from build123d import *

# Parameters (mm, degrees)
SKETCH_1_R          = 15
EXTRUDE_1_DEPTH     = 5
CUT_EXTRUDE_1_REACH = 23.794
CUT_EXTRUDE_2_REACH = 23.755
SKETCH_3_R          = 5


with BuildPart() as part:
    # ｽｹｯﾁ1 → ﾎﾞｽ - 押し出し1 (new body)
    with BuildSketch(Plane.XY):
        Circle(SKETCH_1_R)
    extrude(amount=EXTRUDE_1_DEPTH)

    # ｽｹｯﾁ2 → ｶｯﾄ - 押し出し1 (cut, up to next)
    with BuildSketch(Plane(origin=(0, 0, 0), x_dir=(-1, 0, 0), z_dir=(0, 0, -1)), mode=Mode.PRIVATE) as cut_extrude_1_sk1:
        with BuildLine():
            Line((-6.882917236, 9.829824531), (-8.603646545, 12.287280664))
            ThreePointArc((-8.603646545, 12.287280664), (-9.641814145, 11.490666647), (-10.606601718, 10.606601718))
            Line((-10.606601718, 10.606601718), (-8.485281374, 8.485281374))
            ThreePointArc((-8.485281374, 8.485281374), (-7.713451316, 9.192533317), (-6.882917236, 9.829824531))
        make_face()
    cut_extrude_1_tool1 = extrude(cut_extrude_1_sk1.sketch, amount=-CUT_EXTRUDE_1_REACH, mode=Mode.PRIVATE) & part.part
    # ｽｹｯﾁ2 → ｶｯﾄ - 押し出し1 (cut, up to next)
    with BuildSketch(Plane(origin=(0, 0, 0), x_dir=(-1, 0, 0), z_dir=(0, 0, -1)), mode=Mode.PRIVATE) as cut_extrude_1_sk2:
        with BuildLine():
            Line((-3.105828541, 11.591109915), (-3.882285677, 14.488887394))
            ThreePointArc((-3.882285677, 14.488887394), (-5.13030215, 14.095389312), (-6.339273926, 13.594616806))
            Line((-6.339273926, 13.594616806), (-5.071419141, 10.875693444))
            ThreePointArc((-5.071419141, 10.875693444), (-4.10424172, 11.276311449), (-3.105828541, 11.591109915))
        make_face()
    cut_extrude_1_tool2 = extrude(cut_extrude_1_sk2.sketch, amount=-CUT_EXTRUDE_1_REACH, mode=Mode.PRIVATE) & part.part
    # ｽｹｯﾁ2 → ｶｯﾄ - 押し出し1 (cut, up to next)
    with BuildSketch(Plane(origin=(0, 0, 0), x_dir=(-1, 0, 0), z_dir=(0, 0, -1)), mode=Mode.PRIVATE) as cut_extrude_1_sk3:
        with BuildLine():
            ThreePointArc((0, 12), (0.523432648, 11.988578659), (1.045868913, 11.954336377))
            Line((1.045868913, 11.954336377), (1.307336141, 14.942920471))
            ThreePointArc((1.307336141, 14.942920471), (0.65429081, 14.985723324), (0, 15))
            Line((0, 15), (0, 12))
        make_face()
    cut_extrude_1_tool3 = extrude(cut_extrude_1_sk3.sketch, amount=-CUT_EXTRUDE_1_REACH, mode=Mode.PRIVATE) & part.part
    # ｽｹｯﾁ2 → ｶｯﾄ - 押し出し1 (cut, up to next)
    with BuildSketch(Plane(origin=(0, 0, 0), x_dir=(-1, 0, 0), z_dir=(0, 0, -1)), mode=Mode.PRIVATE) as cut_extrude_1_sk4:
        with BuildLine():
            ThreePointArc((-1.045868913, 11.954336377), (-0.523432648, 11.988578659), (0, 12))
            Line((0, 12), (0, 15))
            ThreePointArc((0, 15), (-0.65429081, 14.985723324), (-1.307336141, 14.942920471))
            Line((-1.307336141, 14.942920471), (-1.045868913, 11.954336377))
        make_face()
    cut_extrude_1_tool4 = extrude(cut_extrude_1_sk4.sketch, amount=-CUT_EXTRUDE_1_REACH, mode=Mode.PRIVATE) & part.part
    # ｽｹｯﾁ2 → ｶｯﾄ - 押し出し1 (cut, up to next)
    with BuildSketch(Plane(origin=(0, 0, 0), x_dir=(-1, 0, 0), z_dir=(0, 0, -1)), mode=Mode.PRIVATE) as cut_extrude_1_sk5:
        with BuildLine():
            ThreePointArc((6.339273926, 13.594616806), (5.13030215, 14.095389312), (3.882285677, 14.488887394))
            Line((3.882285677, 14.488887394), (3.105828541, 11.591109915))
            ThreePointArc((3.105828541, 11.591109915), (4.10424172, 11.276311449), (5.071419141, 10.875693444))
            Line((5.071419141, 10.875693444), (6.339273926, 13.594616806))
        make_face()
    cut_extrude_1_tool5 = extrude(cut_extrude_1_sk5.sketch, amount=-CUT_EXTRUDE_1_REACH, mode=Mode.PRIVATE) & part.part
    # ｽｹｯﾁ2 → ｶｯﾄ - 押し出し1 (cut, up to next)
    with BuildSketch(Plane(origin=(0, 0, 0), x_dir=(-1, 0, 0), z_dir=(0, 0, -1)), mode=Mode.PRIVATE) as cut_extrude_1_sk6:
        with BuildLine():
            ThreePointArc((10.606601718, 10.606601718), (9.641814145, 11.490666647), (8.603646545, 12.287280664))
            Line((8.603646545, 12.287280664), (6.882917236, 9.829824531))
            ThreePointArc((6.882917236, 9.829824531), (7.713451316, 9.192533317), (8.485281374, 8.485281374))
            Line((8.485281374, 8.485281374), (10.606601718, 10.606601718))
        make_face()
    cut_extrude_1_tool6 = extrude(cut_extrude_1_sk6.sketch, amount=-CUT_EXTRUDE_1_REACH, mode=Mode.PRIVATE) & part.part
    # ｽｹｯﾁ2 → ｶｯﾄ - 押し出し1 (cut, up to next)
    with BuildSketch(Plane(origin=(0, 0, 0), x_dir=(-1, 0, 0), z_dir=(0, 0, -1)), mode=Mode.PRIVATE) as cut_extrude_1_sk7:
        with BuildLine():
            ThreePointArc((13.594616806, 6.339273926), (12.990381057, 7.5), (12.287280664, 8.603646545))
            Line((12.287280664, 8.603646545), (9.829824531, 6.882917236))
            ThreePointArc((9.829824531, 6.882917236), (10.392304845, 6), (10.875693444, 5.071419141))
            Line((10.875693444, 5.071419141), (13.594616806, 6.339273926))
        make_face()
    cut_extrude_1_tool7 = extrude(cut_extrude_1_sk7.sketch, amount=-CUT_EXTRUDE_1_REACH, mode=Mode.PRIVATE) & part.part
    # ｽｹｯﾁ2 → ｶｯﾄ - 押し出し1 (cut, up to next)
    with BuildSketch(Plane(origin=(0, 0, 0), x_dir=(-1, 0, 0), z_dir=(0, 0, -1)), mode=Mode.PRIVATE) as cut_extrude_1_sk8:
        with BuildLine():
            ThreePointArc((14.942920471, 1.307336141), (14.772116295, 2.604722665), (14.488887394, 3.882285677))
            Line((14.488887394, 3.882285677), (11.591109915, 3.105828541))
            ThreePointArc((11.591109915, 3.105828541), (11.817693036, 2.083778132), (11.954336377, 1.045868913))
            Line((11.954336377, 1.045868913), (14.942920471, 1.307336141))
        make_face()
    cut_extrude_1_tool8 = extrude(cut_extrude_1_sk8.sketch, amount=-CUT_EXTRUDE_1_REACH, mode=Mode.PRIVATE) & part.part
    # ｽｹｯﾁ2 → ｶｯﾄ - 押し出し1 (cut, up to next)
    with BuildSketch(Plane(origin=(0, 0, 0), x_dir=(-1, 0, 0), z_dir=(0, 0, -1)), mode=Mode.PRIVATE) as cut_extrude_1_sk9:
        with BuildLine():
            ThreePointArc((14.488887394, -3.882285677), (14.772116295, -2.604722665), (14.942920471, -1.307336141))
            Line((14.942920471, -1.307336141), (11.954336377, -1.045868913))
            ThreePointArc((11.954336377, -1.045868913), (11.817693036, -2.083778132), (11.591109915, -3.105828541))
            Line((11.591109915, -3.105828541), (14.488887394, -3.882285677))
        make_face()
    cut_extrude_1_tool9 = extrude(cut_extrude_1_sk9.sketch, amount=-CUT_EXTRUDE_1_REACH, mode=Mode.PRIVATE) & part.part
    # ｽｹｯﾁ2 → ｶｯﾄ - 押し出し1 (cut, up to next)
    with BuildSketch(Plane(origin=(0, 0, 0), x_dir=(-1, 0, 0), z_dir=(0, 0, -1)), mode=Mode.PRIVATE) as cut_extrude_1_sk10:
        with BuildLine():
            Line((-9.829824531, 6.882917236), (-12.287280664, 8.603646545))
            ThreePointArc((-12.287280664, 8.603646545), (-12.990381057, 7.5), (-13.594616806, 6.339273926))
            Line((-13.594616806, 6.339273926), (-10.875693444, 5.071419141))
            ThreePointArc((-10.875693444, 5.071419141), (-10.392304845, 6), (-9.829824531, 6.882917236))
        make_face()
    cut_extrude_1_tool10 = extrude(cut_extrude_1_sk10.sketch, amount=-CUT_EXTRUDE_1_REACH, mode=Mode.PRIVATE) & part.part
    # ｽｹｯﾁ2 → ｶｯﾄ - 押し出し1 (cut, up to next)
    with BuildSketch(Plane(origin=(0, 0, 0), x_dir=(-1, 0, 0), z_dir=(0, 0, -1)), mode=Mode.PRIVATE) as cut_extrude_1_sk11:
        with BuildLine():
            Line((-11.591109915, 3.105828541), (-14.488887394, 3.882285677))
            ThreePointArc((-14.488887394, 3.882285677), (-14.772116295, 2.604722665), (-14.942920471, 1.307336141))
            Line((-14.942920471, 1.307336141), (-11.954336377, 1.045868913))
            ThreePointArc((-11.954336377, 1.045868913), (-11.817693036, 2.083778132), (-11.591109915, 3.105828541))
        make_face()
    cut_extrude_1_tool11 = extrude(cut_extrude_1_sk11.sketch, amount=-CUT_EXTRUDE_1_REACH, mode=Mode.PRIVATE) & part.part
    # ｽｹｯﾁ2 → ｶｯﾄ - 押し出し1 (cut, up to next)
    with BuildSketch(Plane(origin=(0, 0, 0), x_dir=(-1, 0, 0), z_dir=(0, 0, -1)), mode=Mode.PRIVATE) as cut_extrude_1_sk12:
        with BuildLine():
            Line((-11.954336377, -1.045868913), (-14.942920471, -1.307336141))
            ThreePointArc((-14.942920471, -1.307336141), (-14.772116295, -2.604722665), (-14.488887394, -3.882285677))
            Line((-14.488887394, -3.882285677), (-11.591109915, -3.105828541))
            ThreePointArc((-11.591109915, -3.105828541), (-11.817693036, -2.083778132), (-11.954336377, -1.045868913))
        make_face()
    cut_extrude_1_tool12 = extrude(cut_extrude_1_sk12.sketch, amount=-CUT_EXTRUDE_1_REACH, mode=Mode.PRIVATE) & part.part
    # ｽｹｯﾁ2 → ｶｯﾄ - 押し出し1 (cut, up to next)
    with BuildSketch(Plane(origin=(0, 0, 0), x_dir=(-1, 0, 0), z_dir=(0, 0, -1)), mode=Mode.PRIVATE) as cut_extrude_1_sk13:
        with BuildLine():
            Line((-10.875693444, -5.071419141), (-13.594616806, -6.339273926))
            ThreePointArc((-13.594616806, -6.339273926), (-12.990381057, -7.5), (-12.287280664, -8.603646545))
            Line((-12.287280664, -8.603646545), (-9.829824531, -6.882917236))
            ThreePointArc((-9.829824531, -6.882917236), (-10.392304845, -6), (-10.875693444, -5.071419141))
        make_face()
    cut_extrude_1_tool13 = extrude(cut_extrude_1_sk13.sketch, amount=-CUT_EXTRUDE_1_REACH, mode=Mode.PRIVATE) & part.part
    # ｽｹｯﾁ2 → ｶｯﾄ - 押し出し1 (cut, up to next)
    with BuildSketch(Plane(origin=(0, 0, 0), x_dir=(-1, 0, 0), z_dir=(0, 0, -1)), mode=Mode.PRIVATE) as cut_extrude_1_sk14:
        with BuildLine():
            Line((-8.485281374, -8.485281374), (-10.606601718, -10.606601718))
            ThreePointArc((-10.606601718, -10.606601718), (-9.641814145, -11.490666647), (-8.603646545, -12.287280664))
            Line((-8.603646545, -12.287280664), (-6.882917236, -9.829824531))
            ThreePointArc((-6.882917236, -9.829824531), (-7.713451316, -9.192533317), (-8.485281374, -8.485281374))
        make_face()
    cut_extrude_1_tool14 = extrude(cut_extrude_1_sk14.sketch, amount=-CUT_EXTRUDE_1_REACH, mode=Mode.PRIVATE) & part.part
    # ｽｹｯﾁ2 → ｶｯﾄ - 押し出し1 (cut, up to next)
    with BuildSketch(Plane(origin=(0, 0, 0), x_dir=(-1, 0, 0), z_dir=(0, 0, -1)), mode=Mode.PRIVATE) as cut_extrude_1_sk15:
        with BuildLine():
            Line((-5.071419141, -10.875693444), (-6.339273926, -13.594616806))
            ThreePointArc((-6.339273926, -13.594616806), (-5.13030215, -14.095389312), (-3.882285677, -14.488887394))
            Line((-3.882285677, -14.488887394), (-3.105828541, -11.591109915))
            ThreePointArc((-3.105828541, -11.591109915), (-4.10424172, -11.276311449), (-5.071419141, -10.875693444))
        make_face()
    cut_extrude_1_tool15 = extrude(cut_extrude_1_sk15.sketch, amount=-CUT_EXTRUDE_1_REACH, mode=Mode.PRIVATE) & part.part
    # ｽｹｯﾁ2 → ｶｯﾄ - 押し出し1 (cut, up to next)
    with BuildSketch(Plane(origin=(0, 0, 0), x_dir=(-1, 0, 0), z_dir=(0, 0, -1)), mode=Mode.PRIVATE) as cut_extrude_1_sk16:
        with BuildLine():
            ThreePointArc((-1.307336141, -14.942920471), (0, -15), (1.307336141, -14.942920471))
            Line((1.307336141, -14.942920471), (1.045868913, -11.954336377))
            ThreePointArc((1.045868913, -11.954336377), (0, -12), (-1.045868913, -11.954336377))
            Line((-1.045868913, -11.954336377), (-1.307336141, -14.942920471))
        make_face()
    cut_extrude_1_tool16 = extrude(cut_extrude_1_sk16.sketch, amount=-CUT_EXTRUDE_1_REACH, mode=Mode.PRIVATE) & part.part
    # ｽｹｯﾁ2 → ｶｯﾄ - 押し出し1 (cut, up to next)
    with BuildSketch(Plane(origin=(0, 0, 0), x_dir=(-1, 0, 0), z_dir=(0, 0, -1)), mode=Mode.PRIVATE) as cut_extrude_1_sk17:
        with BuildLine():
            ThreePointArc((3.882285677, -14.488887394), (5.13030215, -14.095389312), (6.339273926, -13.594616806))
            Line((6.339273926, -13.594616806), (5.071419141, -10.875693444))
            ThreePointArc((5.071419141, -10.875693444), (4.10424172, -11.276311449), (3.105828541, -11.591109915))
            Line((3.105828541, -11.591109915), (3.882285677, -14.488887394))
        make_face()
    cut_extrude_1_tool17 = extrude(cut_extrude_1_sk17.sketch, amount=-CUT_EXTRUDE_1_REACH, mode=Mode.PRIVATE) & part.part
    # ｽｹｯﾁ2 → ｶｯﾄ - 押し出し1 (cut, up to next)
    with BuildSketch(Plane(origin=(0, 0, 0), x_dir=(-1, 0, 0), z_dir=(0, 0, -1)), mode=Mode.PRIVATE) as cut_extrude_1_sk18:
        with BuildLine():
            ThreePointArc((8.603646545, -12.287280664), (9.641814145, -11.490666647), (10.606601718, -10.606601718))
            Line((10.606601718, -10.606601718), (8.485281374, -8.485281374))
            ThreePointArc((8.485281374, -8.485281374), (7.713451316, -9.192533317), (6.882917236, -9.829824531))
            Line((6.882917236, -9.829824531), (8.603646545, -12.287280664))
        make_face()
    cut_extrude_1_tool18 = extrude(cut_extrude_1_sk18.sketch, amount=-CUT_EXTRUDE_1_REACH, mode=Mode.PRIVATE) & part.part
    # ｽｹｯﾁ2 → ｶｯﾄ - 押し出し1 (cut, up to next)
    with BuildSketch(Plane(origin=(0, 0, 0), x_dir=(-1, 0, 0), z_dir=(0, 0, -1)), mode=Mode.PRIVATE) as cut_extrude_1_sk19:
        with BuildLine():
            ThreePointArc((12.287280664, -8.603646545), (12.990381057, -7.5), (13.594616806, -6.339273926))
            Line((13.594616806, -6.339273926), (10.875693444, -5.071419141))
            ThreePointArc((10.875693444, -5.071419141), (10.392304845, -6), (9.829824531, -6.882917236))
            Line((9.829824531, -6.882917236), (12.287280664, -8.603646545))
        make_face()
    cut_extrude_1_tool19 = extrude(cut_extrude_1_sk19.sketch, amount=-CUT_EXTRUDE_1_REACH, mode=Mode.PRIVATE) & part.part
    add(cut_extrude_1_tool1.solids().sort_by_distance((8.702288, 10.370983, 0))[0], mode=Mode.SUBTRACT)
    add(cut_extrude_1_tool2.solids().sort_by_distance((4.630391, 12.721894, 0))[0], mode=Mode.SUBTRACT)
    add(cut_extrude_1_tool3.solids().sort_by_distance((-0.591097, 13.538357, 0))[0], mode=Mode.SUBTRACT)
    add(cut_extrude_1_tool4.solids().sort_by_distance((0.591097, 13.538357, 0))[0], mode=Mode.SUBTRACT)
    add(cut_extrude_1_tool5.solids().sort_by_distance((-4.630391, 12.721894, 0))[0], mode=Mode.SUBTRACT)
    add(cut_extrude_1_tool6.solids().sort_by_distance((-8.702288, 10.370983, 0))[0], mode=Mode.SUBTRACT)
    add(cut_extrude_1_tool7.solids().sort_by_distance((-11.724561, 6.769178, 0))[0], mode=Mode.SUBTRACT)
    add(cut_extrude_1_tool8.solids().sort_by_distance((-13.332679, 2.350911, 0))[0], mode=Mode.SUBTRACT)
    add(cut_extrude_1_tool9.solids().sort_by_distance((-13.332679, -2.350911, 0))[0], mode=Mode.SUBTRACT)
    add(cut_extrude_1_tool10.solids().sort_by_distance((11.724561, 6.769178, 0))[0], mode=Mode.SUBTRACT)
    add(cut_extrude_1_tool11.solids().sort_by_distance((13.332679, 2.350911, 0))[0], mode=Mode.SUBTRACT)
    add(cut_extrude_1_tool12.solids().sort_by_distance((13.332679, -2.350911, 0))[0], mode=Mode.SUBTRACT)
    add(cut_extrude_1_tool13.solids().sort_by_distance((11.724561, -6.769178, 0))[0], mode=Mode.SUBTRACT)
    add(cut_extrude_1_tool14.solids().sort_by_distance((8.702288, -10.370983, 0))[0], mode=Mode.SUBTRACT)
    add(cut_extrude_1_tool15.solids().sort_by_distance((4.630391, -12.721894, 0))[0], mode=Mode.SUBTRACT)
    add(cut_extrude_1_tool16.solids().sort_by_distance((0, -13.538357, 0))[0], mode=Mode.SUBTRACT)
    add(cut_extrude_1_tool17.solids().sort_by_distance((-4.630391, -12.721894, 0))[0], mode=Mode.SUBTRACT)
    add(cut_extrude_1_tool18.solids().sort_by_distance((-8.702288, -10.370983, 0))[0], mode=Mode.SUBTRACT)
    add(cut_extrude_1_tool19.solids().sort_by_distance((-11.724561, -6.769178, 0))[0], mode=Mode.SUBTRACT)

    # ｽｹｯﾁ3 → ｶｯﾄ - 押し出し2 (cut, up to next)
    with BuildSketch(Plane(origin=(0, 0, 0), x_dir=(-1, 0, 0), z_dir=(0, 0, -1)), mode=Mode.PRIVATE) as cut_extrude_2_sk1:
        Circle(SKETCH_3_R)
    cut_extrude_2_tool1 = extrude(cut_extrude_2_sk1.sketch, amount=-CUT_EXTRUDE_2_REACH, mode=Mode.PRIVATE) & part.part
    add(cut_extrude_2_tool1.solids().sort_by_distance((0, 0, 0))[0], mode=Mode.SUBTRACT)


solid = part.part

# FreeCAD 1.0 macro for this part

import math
import FreeCAD as App
import Part
import Sketcher
Q = App.Units.Quantity

doc = App.newDocument("Part")
body = doc.addObject("PartDesign::Body", "Body")

# Sketch on XY plane
sketch1 = doc.addObject("Sketcher::SketchObject", "Sketch")
body.addObject(sketch1)
sketch1.AttachmentSupport = (doc.XY_Plane, [""])
sketch1.MapMode = "FlatFace"
sketch1.addGeometry(Part.Circle(App.Vector(0, 0, 0), App.Vector(0, 0, 1), 15), False)
sketch1.addConstraint(Sketcher.Constraint("Coincident", 0, 3, -1, 1))
sketch1.addConstraint(Sketcher.Constraint("Diameter", 0, Q("30 mm")))
pad1 = doc.addObject("PartDesign::Pad", "Pad")
body.addObject(pad1)
pad1.Profile = sketch1
pad1.Length = 5

# Sketch on XY plane
sketch2 = doc.addObject("Sketcher::SketchObject", "Sketch001")
body.addObject(sketch2)
sketch2.AttachmentSupport = (doc.XY_Plane, [""])
sketch2.MapMode = "FlatFace"
sketch2.addGeometry(Part.LineSegment(App.Vector(6.882917, 9.829825, 0), App.Vector(8.603647, 12.287281, 0)), False)
sketch2.addGeometry(Part.ArcOfCircle(Part.Circle(App.Vector(0, 0, 0), App.Vector(0, 0, 1), 15), math.radians(45), math.radians(55)), False)
sketch2.addGeometry(Part.LineSegment(App.Vector(10.606602, 10.606602, 0), App.Vector(8.485281, 8.485281, 0)), False)
sketch2.addGeometry(Part.ArcOfCircle(Part.Circle(App.Vector(0, 0, 0), App.Vector(0, 0, 1), 12), math.radians(45), math.radians(55)), False)
sketch2.addConstraint(Sketcher.Constraint("Coincident", 0, 2, 1, 2))
sketch2.addConstraint(Sketcher.Constraint("Coincident", 1, 1, 2, 1))
sketch2.addConstraint(Sketcher.Constraint("Coincident", 2, 2, 3, 1))
sketch2.addConstraint(Sketcher.Constraint("Coincident", 3, 2, 0, 1))
sketch2.addConstraint(Sketcher.Constraint("Coincident", 1, 3, -1, 1))
sketch2.addConstraint(Sketcher.Constraint("Coincident", 3, 3, -1, 1))
sketch2.addConstraint(Sketcher.Constraint("Radius", 1, Q("15 mm")))
sketch2.addConstraint(Sketcher.Constraint("Radius", 3, Q("12 mm")))
sketch2.addConstraint(Sketcher.Constraint("Angle", 0, Q("55 deg")))
sketch2.addConstraint(Sketcher.Constraint("Angle", 2, Q("-135 deg")))
sketch2.addConstraint(Sketcher.Constraint("DistanceY", 2, 2, 0, 2, Q("3.801999 mm")))
sketch2.addConstraint(Sketcher.Constraint("DistanceX", -1, 1, 1, 1, Q("10.606602 mm")))
pocket1 = doc.addObject("PartDesign::Pocket", "Pocket")
body.addObject(pocket1)
pocket1.Profile = sketch2
pocket1.Type = "UpToFirst"
pocket1.Reversed = True

# Sketch on XY plane
sketch3 = doc.addObject("Sketcher::SketchObject", "Sketch002")
body.addObject(sketch3)
sketch3.AttachmentSupport = (doc.XY_Plane, [""])
sketch3.MapMode = "FlatFace"
sketch3.addGeometry(Part.LineSegment(App.Vector(3.105829, 11.59111, 0), App.Vector(3.882286, 14.488887, 0)), False)
sketch3.addGeometry(Part.ArcOfCircle(Part.Circle(App.Vector(0, 0, 0), App.Vector(0, 0, 1), 15), math.radians(65), math.radians(75)), False)
sketch3.addGeometry(Part.LineSegment(App.Vector(6.339274, 13.594617, 0), App.Vector(5.071419, 10.875693, 0)), False)
sketch3.addGeometry(Part.ArcOfCircle(Part.Circle(App.Vector(0, 0, 0), App.Vector(0, 0, 1), 12), math.radians(65), math.radians(75)), False)
sketch3.addConstraint(Sketcher.Constraint("Coincident", 0, 2, 1, 2))
sketch3.addConstraint(Sketcher.Constraint("Coincident", 1, 1, 2, 1))
sketch3.addConstraint(Sketcher.Constraint("Coincident", 2, 2, 3, 1))
sketch3.addConstraint(Sketcher.Constraint("Coincident", 3, 2, 0, 1))
sketch3.addConstraint(Sketcher.Constraint("Coincident", 1, 3, -1, 1))
sketch3.addConstraint(Sketcher.Constraint("Coincident", 3, 3, -1, 1))
sketch3.addConstraint(Sketcher.Constraint("Radius", 1, Q("15 mm")))
sketch3.addConstraint(Sketcher.Constraint("Radius", 3, Q("12 mm")))
sketch3.addConstraint(Sketcher.Constraint("Angle", 0, Q("75 deg")))
sketch3.addConstraint(Sketcher.Constraint("Angle", 2, Q("-115 deg")))
sketch3.addConstraint(Sketcher.Constraint("DistanceX", -1, 1, 2, 2, Q("5.071419 mm")))
sketch3.addConstraint(Sketcher.Constraint("DistanceX", -1, 1, 3, 2, Q("3.105829 mm")))
pocket2 = doc.addObject("PartDesign::Pocket", "Pocket001")
body.addObject(pocket2)
pocket2.Profile = sketch3
pocket2.Type = "UpToFirst"
pocket2.Reversed = True

# Sketch on XY plane
sketch4 = doc.addObject("Sketcher::SketchObject", "Sketch003")
body.addObject(sketch4)
sketch4.AttachmentSupport = (doc.XY_Plane, [""])
sketch4.MapMode = "FlatFace"
sketch4.addGeometry(Part.ArcOfCircle(Part.Circle(App.Vector(0, 0, 0), App.Vector(0, 0, 1), 12), math.radians(90), math.radians(95)), False)
sketch4.addGeometry(Part.LineSegment(App.Vector(-1.045869, 11.954336, 0), App.Vector(-1.307336, 14.94292, 0)), False)
sketch4.addGeometry(Part.ArcOfCircle(Part.Circle(App.Vector(0, 0, 0), App.Vector(0, 0, 1), 15), math.radians(90), math.radians(95)), False)
sketch4.addGeometry(Part.LineSegment(App.Vector(0, 15, 0), App.Vector(0, 12, 0)), False)
sketch4.addConstraint(Sketcher.Constraint("Coincident", 0, 2, 1, 1))
sketch4.addConstraint(Sketcher.Constraint("Coincident", 1, 2, 2, 2))
sketch4.addConstraint(Sketcher.Constraint("Coincident", 2, 1, 3, 1))
sketch4.addConstraint(Sketcher.Constraint("Coincident", 3, 2, 0, 1))
sketch4.addConstraint(Sketcher.Constraint("Vertical", 3))
sketch4.addConstraint(Sketcher.Constraint("Coincident", 0, 3, -1, 1))
sketch4.addConstraint(Sketcher.Constraint("Coincident", 2, 3, -1, 1))
sketch4.addConstraint(Sketcher.Constraint("PointOnObject", 2, 1, -2))
sketch4.addConstraint(Sketcher.Constraint("Radius", 0, Q("12 mm")))
sketch4.addConstraint(Sketcher.Constraint("Radius", 2, Q("15 mm")))
sketch4.addConstraint(Sketcher.Constraint("Angle", 1, Q("95 deg")))
sketch4.addConstraint(Sketcher.Constraint("DistanceX", 0, 2, -1, 1, Q("1.045869 mm")))
pocket3 = doc.addObject("PartDesign::Pocket", "Pocket002")
body.addObject(pocket3)
pocket3.Profile = sketch4
pocket3.Type = "UpToFirst"
pocket3.Reversed = True

# Sketch on XY plane
sketch5 = doc.addObject("Sketcher::SketchObject", "Sketch004")
body.addObject(sketch5)
sketch5.AttachmentSupport = (doc.XY_Plane, [""])
sketch5.MapMode = "FlatFace"
sketch5.addGeometry(Part.ArcOfCircle(Part.Circle(App.Vector(0, 0, 0), App.Vector(0, 0, 1), 12), math.radians(85), math.radians(90)), False)
sketch5.addGeometry(Part.LineSegment(App.Vector(0, 12, 0), App.Vector(0, 15, 0)), False)
sketch5.addGeometry(Part.ArcOfCircle(Part.Circle(App.Vector(0, 0, 0), App.Vector(0, 0, 1), 15), math.radians(85), math.radians(90)), False)
sketch5.addGeometry(Part.LineSegment(App.Vector(1.307336, 14.94292, 0), App.Vector(1.045869, 11.954336, 0)), False)
sketch5.addConstraint(Sketcher.Constraint("Coincident", 0, 2, 1, 1))
sketch5.addConstraint(Sketcher.Constraint("Coincident", 1, 2, 2, 2))
sketch5.addConstraint(Sketcher.Constraint("Coincident", 2, 1, 3, 1))
sketch5.addConstraint(Sketcher.Constraint("Coincident", 3, 2, 0, 1))
sketch5.addConstraint(Sketcher.Constraint("Vertical", 1))
sketch5.addConstraint(Sketcher.Constraint("Coincident", 0, 3, -1, 1))
sketch5.addConstraint(Sketcher.Constraint("Coincident", 2, 3, -1, 1))
sketch5.addConstraint(Sketcher.Constraint("PointOnObject", 0, 2, -2))
sketch5.addConstraint(Sketcher.Constraint("Radius", 0, Q("12 mm")))
sketch5.addConstraint(Sketcher.Constraint("Radius", 2, Q("15 mm")))
sketch5.addConstraint(Sketcher.Constraint("Angle", 3, Q("-95 deg")))
sketch5.addConstraint(Sketcher.Constraint("DistanceY", -1, 1, 2, 1, Q("14.94292 mm")))
pocket4 = doc.addObject("PartDesign::Pocket", "Pocket003")
body.addObject(pocket4)
pocket4.Profile = sketch5
pocket4.Type = "UpToFirst"
pocket4.Reversed = True

# Sketch on XY plane
sketch6 = doc.addObject("Sketcher::SketchObject", "Sketch005")
body.addObject(sketch6)
sketch6.AttachmentSupport = (doc.XY_Plane, [""])
sketch6.MapMode = "FlatFace"
sketch6.addGeometry(Part.ArcOfCircle(Part.Circle(App.Vector(0, 0, 0), App.Vector(0, 0, 1), 15), math.radians(105), math.radians(115)), False)
sketch6.addGeometry(Part.LineSegment(App.Vector(-3.882286, 14.488887, 0), App.Vector(-3.105829, 11.59111, 0)), False)
sketch6.addGeometry(Part.ArcOfCircle(Part.Circle(App.Vector(0, 0, 0), App.Vector(0, 0, 1), 12), math.radians(105), math.radians(115)), False)
sketch6.addGeometry(Part.LineSegment(App.Vector(-5.071419, 10.875693, 0), App.Vector(-6.339274, 13.594617, 0)), False)
sketch6.addConstraint(Sketcher.Constraint("Coincident", 0, 1, 1, 1))
sketch6.addConstraint(Sketcher.Constraint("Coincident", 1, 2, 2, 1))
sketch6.addConstraint(Sketcher.Constraint("Coincident", 2, 2, 3, 1))
sketch6.addConstraint(Sketcher.Constraint("Coincident", 3, 2, 0, 2))
sketch6.addConstraint(Sketcher.Constraint("Coincident", 0, 3, -1, 1))
sketch6.addConstraint(Sketcher.Constraint("Coincident", 2, 3, -1, 1))
sketch6.addConstraint(Sketcher.Constraint("Radius", 0, Q("15 mm")))
sketch6.addConstraint(Sketcher.Constraint("Radius", 2, Q("12 mm")))
sketch6.addConstraint(Sketcher.Constraint("Angle", 1, Q("-75 deg")))
sketch6.addConstraint(Sketcher.Constraint("Angle", 3, Q("115 deg")))
sketch6.addConstraint(Sketcher.Constraint("DistanceX", 1, 2, -1, 1, Q("3.105829 mm")))
sketch6.addConstraint(Sketcher.Constraint("DistanceX", 2, 2, -1, 1, Q("5.071419 mm")))
pocket5 = doc.addObject("PartDesign::Pocket", "Pocket004")
body.addObject(pocket5)
pocket5.Profile = sketch6
pocket5.Type = "UpToFirst"
pocket5.Reversed = True

# Sketch on XY plane
sketch7 = doc.addObject("Sketcher::SketchObject", "Sketch006")
body.addObject(sketch7)
sketch7.AttachmentSupport = (doc.XY_Plane, [""])
sketch7.MapMode = "FlatFace"
sketch7.addGeometry(Part.ArcOfCircle(Part.Circle(App.Vector(0, 0, 0), App.Vector(0, 0, 1), 15), math.radians(125), math.radians(135)), False)
sketch7.addGeometry(Part.LineSegment(App.Vector(-8.603647, 12.287281, 0), App.Vector(-6.882917, 9.829825, 0)), False)
sketch7.addGeometry(Part.ArcOfCircle(Part.Circle(App.Vector(0, 0, 0), App.Vector(0, 0, 1), 12), math.radians(125), math.radians(135)), False)
sketch7.addGeometry(Part.LineSegment(App.Vector(-8.485281, 8.485281, 0), App.Vector(-10.606602, 10.606602, 0)), False)
sketch7.addConstraint(Sketcher.Constraint("Coincident", 0, 1, 1, 1))
sketch7.addConstraint(Sketcher.Constraint("Coincident", 1, 2, 2, 1))
sketch7.addConstraint(Sketcher.Constraint("Coincident", 2, 2, 3, 1))
sketch7.addConstraint(Sketcher.Constraint("Coincident", 3, 2, 0, 2))
sketch7.addConstraint(Sketcher.Constraint("Coincident", 0, 3, -1, 1))
sketch7.addConstraint(Sketcher.Constraint("Coincident", 2, 3, -1, 1))
sketch7.addConstraint(Sketcher.Constraint("Radius", 0, Q("15 mm")))
sketch7.addConstraint(Sketcher.Constraint("Radius", 2, Q("12 mm")))
sketch7.addConstraint(Sketcher.Constraint("Angle", 1, Q("-55 deg")))
sketch7.addConstraint(Sketcher.Constraint("Angle", 3, Q("135 deg")))
sketch7.addConstraint(Sketcher.Constraint("DistanceY", 2, 2, 0, 1, Q("3.801999 mm")))
sketch7.addConstraint(Sketcher.Constraint("DistanceX", 3, 2, -1, 1, Q("10.606602 mm")))
pocket6 = doc.addObject("PartDesign::Pocket", "Pocket005")
body.addObject(pocket6)
pocket6.Profile = sketch7
pocket6.Type = "UpToFirst"
pocket6.Reversed = True

# Sketch on XY plane
sketch8 = doc.addObject("Sketcher::SketchObject", "Sketch007")
body.addObject(sketch8)
sketch8.AttachmentSupport = (doc.XY_Plane, [""])
sketch8.MapMode = "FlatFace"
sketch8.addGeometry(Part.ArcOfCircle(Part.Circle(App.Vector(0, 0, 0), App.Vector(0, 0, 1), 15), math.radians(145), math.radians(155)), False)
sketch8.addGeometry(Part.LineSegment(App.Vector(-12.287281, 8.603647, 0), App.Vector(-9.829825, 6.882917, 0)), False)
sketch8.addGeometry(Part.ArcOfCircle(Part.Circle(App.Vector(0, 0, 0), App.Vector(0, 0, 1), 12), math.radians(145), math.radians(155)), False)
sketch8.addGeometry(Part.LineSegment(App.Vector(-10.875693, 5.071419, 0), App.Vector(-13.594617, 6.339274, 0)), False)
sketch8.addConstraint(Sketcher.Constraint("Coincident", 0, 1, 1, 1))
sketch8.addConstraint(Sketcher.Constraint("Coincident", 1, 2, 2, 1))
sketch8.addConstraint(Sketcher.Constraint("Coincident", 2, 2, 3, 1))
sketch8.addConstraint(Sketcher.Constraint("Coincident", 3, 2, 0, 2))
sketch8.addConstraint(Sketcher.Constraint("Coincident", 0, 3, -1, 1))
sketch8.addConstraint(Sketcher.Constraint("Coincident", 2, 3, -1, 1))
sketch8.addConstraint(Sketcher.Constraint("Radius", 0, Q("15 mm")))
sketch8.addConstraint(Sketcher.Constraint("Radius", 2, Q("12 mm")))
sketch8.addConstraint(Sketcher.Constraint("Angle", 1, Q("-35 deg")))
sketch8.addConstraint(Sketcher.Constraint("Angle", 3, Q("155 deg")))
sketch8.addConstraint(Sketcher.Constraint("DistanceY", 2, 2, 1, 2, Q("1.811498 mm")))
sketch8.addConstraint(Sketcher.Constraint("DistanceX", 0, 1, -1, 1, Q("12.287281 mm")))
pocket7 = doc.addObject("PartDesign::Pocket", "Pocket006")
body.addObject(pocket7)
pocket7.Profile = sketch8
pocket7.Type = "UpToFirst"
pocket7.Reversed = True

# Sketch on XY plane
sketch9 = doc.addObject("Sketcher::SketchObject", "Sketch008")
body.addObject(sketch9)
sketch9.AttachmentSupport = (doc.XY_Plane, [""])
sketch9.MapMode = "FlatFace"
sketch9.addGeometry(Part.ArcOfCircle(Part.Circle(App.Vector(0, 0, 0), App.Vector(0, 0, 1), 15), math.radians(165), math.radians(175)), False)
sketch9.addGeometry(Part.LineSegment(App.Vector(-14.488887, 3.882286, 0), App.Vector(-11.59111, 3.105829, 0)), False)
sketch9.addGeometry(Part.ArcOfCircle(Part.Circle(App.Vector(0, 0, 0), App.Vector(0, 0, 1), 12), math.radians(165), math.radians(175)), False)
sketch9.addGeometry(Part.LineSegment(App.Vector(-11.954336, 1.045869, 0), App.Vector(-14.94292, 1.307336, 0)), False)
sketch9.addConstraint(Sketcher.Constraint("Coincident", 0, 1, 1, 1))
sketch9.addConstraint(Sketcher.Constraint("Coincident", 1, 2, 2, 1))
sketch9.addConstraint(Sketcher.Constraint("Coincident", 2, 2, 3, 1))
sketch9.addConstraint(Sketcher.Constraint("Coincident", 3, 2, 0, 2))
sketch9.addConstraint(Sketcher.Constraint("Coincident", 0, 3, -1, 1))
sketch9.addConstraint(Sketcher.Constraint("Coincident", 2, 3, -1, 1))
sketch9.addConstraint(Sketcher.Constraint("Radius", 0, Q("15 mm")))
sketch9.addConstraint(Sketcher.Constraint("Radius", 2, Q("12 mm")))
sketch9.addConstraint(Sketcher.Constraint("Angle", 1, Q("-15 deg")))
sketch9.addConstraint(Sketcher.Constraint("Angle", 3, Q("175 deg")))
sketch9.addConstraint(Sketcher.Constraint("DistanceX", 1, 2, -1, 1, Q("11.59111 mm")))
sketch9.addConstraint(Sketcher.Constraint("DistanceY", -1, 1, 2, 2, Q("1.045869 mm")))
pocket8 = doc.addObject("PartDesign::Pocket", "Pocket007")
body.addObject(pocket8)
pocket8.Profile = sketch9
pocket8.Type = "UpToFirst"
pocket8.Reversed = True

# Sketch on XY plane
sketch10 = doc.addObject("Sketcher::SketchObject", "Sketch009")
body.addObject(sketch10)
sketch10.AttachmentSupport = (doc.XY_Plane, [""])
sketch10.MapMode = "FlatFace"
sketch10.addGeometry(Part.ArcOfCircle(Part.Circle(App.Vector(0, 0, 0), App.Vector(0, 0, 1), 15), math.radians(-175), math.radians(-165)), False)
sketch10.addGeometry(Part.LineSegment(App.Vector(-14.94292, -1.307336, 0), App.Vector(-11.954336, -1.045869, 0)), False)
sketch10.addGeometry(Part.ArcOfCircle(Part.Circle(App.Vector(0, 0, 0), App.Vector(0, 0, 1), 12), math.radians(-175), math.radians(-165)), False)
sketch10.addGeometry(Part.LineSegment(App.Vector(-11.59111, -3.105829, 0), App.Vector(-14.488887, -3.882286, 0)), False)
sketch10.addConstraint(Sketcher.Constraint("Coincident", 0, 1, 1, 1))
sketch10.addConstraint(Sketcher.Constraint("Coincident", 1, 2, 2, 1))
sketch10.addConstraint(Sketcher.Constraint("Coincident", 2, 2, 3, 1))
sketch10.addConstraint(Sketcher.Constraint("Coincident", 3, 2, 0, 2))
sketch10.addConstraint(Sketcher.Constraint("Coincident", 0, 3, -1, 1))
sketch10.addConstraint(Sketcher.Constraint("Coincident", 2, 3, -1, 1))
sketch10.addConstraint(Sketcher.Constraint("Radius", 0, Q("15 mm")))
sketch10.addConstraint(Sketcher.Constraint("Radius", 2, Q("12 mm")))
sketch10.addConstraint(Sketcher.Constraint("Angle", 1, Q("5 deg")))
sketch10.addConstraint(Sketcher.Constraint("Angle", 3, Q("-165 deg")))
sketch10.addConstraint(Sketcher.Constraint("DistanceX", 0, 1, -1, 1, Q("14.94292 mm")))
sketch10.addConstraint(Sketcher.Constraint("DistanceX", 2, 2, -1, 1, Q("11.59111 mm")))
pocket9 = doc.addObject("PartDesign::Pocket", "Pocket008")
body.addObject(pocket9)
pocket9.Profile = sketch10
pocket9.Type = "UpToFirst"
pocket9.Reversed = True

# Sketch on XY plane
sketch11 = doc.addObject("Sketcher::SketchObject", "Sketch010")
body.addObject(sketch11)
sketch11.AttachmentSupport = (doc.XY_Plane, [""])
sketch11.MapMode = "FlatFace"
sketch11.addGeometry(Part.LineSegment(App.Vector(9.829825, 6.882917, 0), App.Vector(12.287281, 8.603647, 0)), False)
sketch11.addGeometry(Part.ArcOfCircle(Part.Circle(App.Vector(0, 0, 0), App.Vector(0, 0, 1), 15), math.radians(25), math.radians(35)), False)
sketch11.addGeometry(Part.LineSegment(App.Vector(13.594617, 6.339274, 0), App.Vector(10.875693, 5.071419, 0)), False)
sketch11.addGeometry(Part.ArcOfCircle(Part.Circle(App.Vector(0, 0, 0), App.Vector(0, 0, 1), 12), math.radians(25), math.radians(35)), False)
sketch11.addConstraint(Sketcher.Constraint("Coincident", 0, 2, 1, 2))
sketch11.addConstraint(Sketcher.Constraint("Coincident", 1, 1, 2, 1))
sketch11.addConstraint(Sketcher.Constraint("Coincident", 2, 2, 3, 1))
sketch11.addConstraint(Sketcher.Constraint("Coincident", 3, 2, 0, 1))
sketch11.addConstraint(Sketcher.Constraint("Coincident", 1, 3, -1, 1))
sketch11.addConstraint(Sketcher.Constraint("Coincident", 3, 3, -1, 1))
sketch11.addConstraint(Sketcher.Constraint("Radius", 1, Q("15 mm")))
sketch11.addConstraint(Sketcher.Constraint("Radius", 3, Q("12 mm")))
sketch11.addConstraint(Sketcher.Constraint("Angle", 0, Q("35 deg")))
sketch11.addConstraint(Sketcher.Constraint("Angle", 2, Q("-155 deg")))
sketch11.addConstraint(Sketcher.Constraint("DistanceY", 2, 2, 3, 2, Q("1.811498 mm")))
sketch11.addConstraint(Sketcher.Constraint("DistanceX", -1, 1, 0, 2, Q("12.287281 mm")))
pocket10 = doc.addObject("PartDesign::Pocket", "Pocket009")
body.addObject(pocket10)
pocket10.Profile = sketch11
pocket10.Type = "UpToFirst"
pocket10.Reversed = True

# Sketch on XY plane
sketch12 = doc.addObject("Sketcher::SketchObject", "Sketch011")
body.addObject(sketch12)
sketch12.AttachmentSupport = (doc.XY_Plane, [""])
sketch12.MapMode = "FlatFace"
sketch12.addGeometry(Part.LineSegment(App.Vector(11.59111, 3.105829, 0), App.Vector(14.488887, 3.882286, 0)), False)
sketch12.addGeometry(Part.ArcOfCircle(Part.Circle(App.Vector(0, 0, 0), App.Vector(0, 0, 1), 15), math.radians(5), math.radians(15)), False)
sketch12.addGeometry(Part.LineSegment(App.Vector(14.94292, 1.307336, 0), App.Vector(11.954336, 1.045869, 0)), False)
sketch12.addGeometry(Part.ArcOfCircle(Part.Circle(App.Vector(0, 0, 0), App.Vector(0, 0, 1), 12), math.radians(5), math.radians(15)), False)
sketch12.addConstraint(Sketcher.Constraint("Coincident", 0, 2, 1, 2))
sketch12.addConstraint(Sketcher.Constraint("Coincident", 1, 1, 2, 1))
sketch12.addConstraint(Sketcher.Constraint("Coincident", 2, 2, 3, 1))
sketch12.addConstraint(Sketcher.Constraint("Coincident", 3, 2, 0, 1))
sketch12.addConstraint(Sketcher.Constraint("Coincident", 1, 3, -1, 1))
sketch12.addConstraint(Sketcher.Constraint("Coincident", 3, 3, -1, 1))
sketch12.addConstraint(Sketcher.Constraint("Radius", 1, Q("15 mm")))
sketch12.addConstraint(Sketcher.Constraint("Radius", 3, Q("12 mm")))
sketch12.addConstraint(Sketcher.Constraint("Angle", 0, Q("15 deg")))
sketch12.addConstraint(Sketcher.Constraint("Angle", 2, Q("-175 deg")))
sketch12.addConstraint(Sketcher.Constraint("DistanceX", -1, 1, 1, 1, Q("14.94292 mm")))
sketch12.addConstraint(Sketcher.Constraint("DistanceX", -1, 1, 3, 2, Q("11.59111 mm")))
pocket11 = doc.addObject("PartDesign::Pocket", "Pocket010")
body.addObject(pocket11)
pocket11.Profile = sketch12
pocket11.Type = "UpToFirst"
pocket11.Reversed = True

# Sketch on XY plane
sketch13 = doc.addObject("Sketcher::SketchObject", "Sketch012")
body.addObject(sketch13)
sketch13.AttachmentSupport = (doc.XY_Plane, [""])
sketch13.MapMode = "FlatFace"
sketch13.addGeometry(Part.LineSegment(App.Vector(11.954336, -1.045869, 0), App.Vector(14.94292, -1.307336, 0)), False)
sketch13.addGeometry(Part.ArcOfCircle(Part.Circle(App.Vector(0, 0, 0), App.Vector(0, 0, 1), 15), math.radians(-15), math.radians(-5)), False)
sketch13.addGeometry(Part.LineSegment(App.Vector(14.488887, -3.882286, 0), App.Vector(11.59111, -3.105829, 0)), False)
sketch13.addGeometry(Part.ArcOfCircle(Part.Circle(App.Vector(0, 0, 0), App.Vector(0, 0, 1), 12), math.radians(-15), math.radians(-5)), False)
sketch13.addConstraint(Sketcher.Constraint("Coincident", 0, 2, 1, 2))
sketch13.addConstraint(Sketcher.Constraint("Coincident", 1, 1, 2, 1))
sketch13.addConstraint(Sketcher.Constraint("Coincident", 2, 2, 3, 1))
sketch13.addConstraint(Sketcher.Constraint("Coincident", 3, 2, 0, 1))
sketch13.addConstraint(Sketcher.Constraint("Coincident", 1, 3, -1, 1))
sketch13.addConstraint(Sketcher.Constraint("Coincident", 3, 3, -1, 1))
sketch13.addConstraint(Sketcher.Constraint("Radius", 1, Q("15 mm")))
sketch13.addConstraint(Sketcher.Constraint("Radius", 3, Q("12 mm")))
sketch13.addConstraint(Sketcher.Constraint("Angle", 0, Q("-5 deg")))
sketch13.addConstraint(Sketcher.Constraint("Angle", 2, Q("165 deg")))
sketch13.addConstraint(Sketcher.Constraint("DistanceX", -1, 1, 0, 2, Q("14.94292 mm")))
sketch13.addConstraint(Sketcher.Constraint("DistanceX", -1, 1, 2, 2, Q("11.59111 mm")))
pocket12 = doc.addObject("PartDesign::Pocket", "Pocket011")
body.addObject(pocket12)
pocket12.Profile = sketch13
pocket12.Type = "UpToFirst"
pocket12.Reversed = True

# Sketch on XY plane
sketch14 = doc.addObject("Sketcher::SketchObject", "Sketch013")
body.addObject(sketch14)
sketch14.AttachmentSupport = (doc.XY_Plane, [""])
sketch14.MapMode = "FlatFace"
sketch14.addGeometry(Part.LineSegment(App.Vector(10.875693, -5.071419, 0), App.Vector(13.594617, -6.339274, 0)), False)
sketch14.addGeometry(Part.ArcOfCircle(Part.Circle(App.Vector(0, 0, 0), App.Vector(0, 0, 1), 15), math.radians(-35), math.radians(-25)), False)
sketch14.addGeometry(Part.LineSegment(App.Vector(12.287281, -8.603647, 0), App.Vector(9.829825, -6.882917, 0)), False)
sketch14.addGeometry(Part.ArcOfCircle(Part.Circle(App.Vector(0, 0, 0), App.Vector(0, 0, 1), 12), math.radians(-35), math.radians(-25)), False)
sketch14.addConstraint(Sketcher.Constraint("Coincident", 0, 2, 1, 2))
sketch14.addConstraint(Sketcher.Constraint("Coincident", 1, 1, 2, 1))
sketch14.addConstraint(Sketcher.Constraint("Coincident", 2, 2, 3, 1))
sketch14.addConstraint(Sketcher.Constraint("Coincident", 3, 2, 0, 1))
sketch14.addConstraint(Sketcher.Constraint("Coincident", 1, 3, -1, 1))
sketch14.addConstraint(Sketcher.Constraint("Coincident", 3, 3, -1, 1))
sketch14.addConstraint(Sketcher.Constraint("Radius", 1, Q("15 mm")))
sketch14.addConstraint(Sketcher.Constraint("Radius", 3, Q("12 mm")))
sketch14.addConstraint(Sketcher.Constraint("Angle", 0, Q("-25 deg")))
sketch14.addConstraint(Sketcher.Constraint("Angle", 2, Q("145 deg")))
sketch14.addConstraint(Sketcher.Constraint("DistanceY", 2, 2, 3, 2, Q("1.811498 mm")))
sketch14.addConstraint(Sketcher.Constraint("DistanceX", -1, 1, 1, 1, Q("12.287281 mm")))
pocket13 = doc.addObject("PartDesign::Pocket", "Pocket012")
body.addObject(pocket13)
pocket13.Profile = sketch14
pocket13.Type = "UpToFirst"
pocket13.Reversed = True

# Sketch on XY plane
sketch15 = doc.addObject("Sketcher::SketchObject", "Sketch014")
body.addObject(sketch15)
sketch15.AttachmentSupport = (doc.XY_Plane, [""])
sketch15.MapMode = "FlatFace"
sketch15.addGeometry(Part.LineSegment(App.Vector(8.485281, -8.485281, 0), App.Vector(10.606602, -10.606602, 0)), False)
sketch15.addGeometry(Part.ArcOfCircle(Part.Circle(App.Vector(0, 0, 0), App.Vector(0, 0, 1), 15), math.radians(-55), math.radians(-45)), False)
sketch15.addGeometry(Part.LineSegment(App.Vector(8.603647, -12.287281, 0), App.Vector(6.882917, -9.829825, 0)), False)
sketch15.addGeometry(Part.ArcOfCircle(Part.Circle(App.Vector(0, 0, 0), App.Vector(0, 0, 1), 12), math.radians(-55), math.radians(-45)), False)
sketch15.addConstraint(Sketcher.Constraint("Coincident", 0, 2, 1, 2))
sketch15.addConstraint(Sketcher.Constraint("Coincident", 1, 1, 2, 1))
sketch15.addConstraint(Sketcher.Constraint("Coincident", 2, 2, 3, 1))
sketch15.addConstraint(Sketcher.Constraint("Coincident", 3, 2, 0, 1))
sketch15.addConstraint(Sketcher.Constraint("Coincident", 1, 3, -1, 1))
sketch15.addConstraint(Sketcher.Constraint("Coincident", 3, 3, -1, 1))
sketch15.addConstraint(Sketcher.Constraint("Radius", 1, Q("15 mm")))
sketch15.addConstraint(Sketcher.Constraint("Radius", 3, Q("12 mm")))
sketch15.addConstraint(Sketcher.Constraint("Angle", 0, Q("-45 deg")))
sketch15.addConstraint(Sketcher.Constraint("Angle", 2, Q("125 deg")))
sketch15.addConstraint(Sketcher.Constraint("DistanceY", 1, 1, 3, 2, Q("3.801999 mm")))
sketch15.addConstraint(Sketcher.Constraint("DistanceX", -1, 1, 0, 2, Q("10.606602 mm")))
pocket14 = doc.addObject("PartDesign::Pocket", "Pocket013")
body.addObject(pocket14)
pocket14.Profile = sketch15
pocket14.Type = "UpToFirst"
pocket14.Reversed = True

# Sketch on XY plane
sketch16 = doc.addObject("Sketcher::SketchObject", "Sketch015")
body.addObject(sketch16)
sketch16.AttachmentSupport = (doc.XY_Plane, [""])
sketch16.MapMode = "FlatFace"
sketch16.addGeometry(Part.LineSegment(App.Vector(5.071419, -10.875693, 0), App.Vector(6.339274, -13.594617, 0)), False)
sketch16.addGeometry(Part.ArcOfCircle(Part.Circle(App.Vector(0, 0, 0), App.Vector(0, 0, 1), 15), math.radians(-75), math.radians(-65)), False)
sketch16.addGeometry(Part.LineSegment(App.Vector(3.882286, -14.488887, 0), App.Vector(3.105829, -11.59111, 0)), False)
sketch16.addGeometry(Part.ArcOfCircle(Part.Circle(App.Vector(0, 0, 0), App.Vector(0, 0, 1), 12), math.radians(-75), math.radians(-65)), False)
sketch16.addConstraint(Sketcher.Constraint("Coincident", 0, 2, 1, 2))
sketch16.addConstraint(Sketcher.Constraint("Coincident", 1, 1, 2, 1))
sketch16.addConstraint(Sketcher.Constraint("Coincident", 2, 2, 3, 1))
sketch16.addConstraint(Sketcher.Constraint("Coincident", 3, 2, 0, 1))
sketch16.addConstraint(Sketcher.Constraint("Coincident", 1, 3, -1, 1))
sketch16.addConstraint(Sketcher.Constraint("Coincident", 3, 3, -1, 1))
sketch16.addConstraint(Sketcher.Constraint("Radius", 1, Q("15 mm")))
sketch16.addConstraint(Sketcher.Constraint("Radius", 3, Q("12 mm")))
sketch16.addConstraint(Sketcher.Constraint("Angle", 0, Q("-65 deg")))
sketch16.addConstraint(Sketcher.Constraint("Angle", 2, Q("105 deg")))
sketch16.addConstraint(Sketcher.Constraint("DistanceX", -1, 1, 2, 2, Q("3.105829 mm")))
sketch16.addConstraint(Sketcher.Constraint("DistanceX", -1, 1, 3, 2, Q("5.071419 mm")))
pocket15 = doc.addObject("PartDesign::Pocket", "Pocket014")
body.addObject(pocket15)
pocket15.Profile = sketch16
pocket15.Type = "UpToFirst"
pocket15.Reversed = True

# Sketch on XY plane
sketch17 = doc.addObject("Sketcher::SketchObject", "Sketch016")
body.addObject(sketch17)
sketch17.AttachmentSupport = (doc.XY_Plane, [""])
sketch17.MapMode = "FlatFace"
sketch17.addGeometry(Part.ArcOfCircle(Part.Circle(App.Vector(0, 0, 0), App.Vector(0, 0, 1), 15), math.radians(-95), math.radians(-85)), False)
sketch17.addGeometry(Part.LineSegment(App.Vector(-1.307336, -14.94292, 0), App.Vector(-1.045869, -11.954336, 0)), False)
sketch17.addGeometry(Part.ArcOfCircle(Part.Circle(App.Vector(0, 0, 0), App.Vector(0, 0, 1), 12), math.radians(-95), math.radians(-85)), False)
sketch17.addGeometry(Part.LineSegment(App.Vector(1.045869, -11.954336, 0), App.Vector(1.307336, -14.94292, 0)), False)
sketch17.addConstraint(Sketcher.Constraint("Coincident", 0, 1, 1, 1))
sketch17.addConstraint(Sketcher.Constraint("Coincident", 1, 2, 2, 1))
sketch17.addConstraint(Sketcher.Constraint("Coincident", 2, 2, 3, 1))
sketch17.addConstraint(Sketcher.Constraint("Coincident", 3, 2, 0, 2))
sketch17.addConstraint(Sketcher.Constraint("Coincident", 0, 3, -1, 1))
sketch17.addConstraint(Sketcher.Constraint("Coincident", 2, 3, -1, 1))
sketch17.addConstraint(Sketcher.Constraint("Horizontal", 1, 2, 2, 2))
sketch17.addConstraint(Sketcher.Constraint("Horizontal", 0, 1, 3, 2))
sketch17.addConstraint(Sketcher.Constraint("Radius", 0, Q("15 mm")))
sketch17.addConstraint(Sketcher.Constraint("Radius", 2, Q("12 mm")))
sketch17.addConstraint(Sketcher.Constraint("Angle", 1, Q("85 deg")))
sketch17.addConstraint(Sketcher.Constraint("DistanceY", 0, 1, -1, 1, Q("14.94292 mm")))
pocket16 = doc.addObject("PartDesign::Pocket", "Pocket015")
body.addObject(pocket16)
pocket16.Profile = sketch17
pocket16.Type = "UpToFirst"
pocket16.Reversed = True

# Sketch on XY plane
sketch18 = doc.addObject("Sketcher::SketchObject", "Sketch017")
body.addObject(sketch18)
sketch18.AttachmentSupport = (doc.XY_Plane, [""])
sketch18.MapMode = "FlatFace"
sketch18.addGeometry(Part.ArcOfCircle(Part.Circle(App.Vector(0, 0, 0), App.Vector(0, 0, 1), 15), math.radians(-115), math.radians(-105)), False)
sketch18.addGeometry(Part.LineSegment(App.Vector(-6.339274, -13.594617, 0), App.Vector(-5.071419, -10.875693, 0)), False)
sketch18.addGeometry(Part.ArcOfCircle(Part.Circle(App.Vector(0, 0, 0), App.Vector(0, 0, 1), 12), math.radians(-115), math.radians(-105)), False)
sketch18.addGeometry(Part.LineSegment(App.Vector(-3.105829, -11.59111, 0), App.Vector(-3.882286, -14.488887, 0)), False)
sketch18.addConstraint(Sketcher.Constraint("Coincident", 0, 1, 1, 1))
sketch18.addConstraint(Sketcher.Constraint("Coincident", 1, 2, 2, 1))
sketch18.addConstraint(Sketcher.Constraint("Coincident", 2, 2, 3, 1))
sketch18.addConstraint(Sketcher.Constraint("Coincident", 3, 2, 0, 2))
sketch18.addConstraint(Sketcher.Constraint("Coincident", 0, 3, -1, 1))
sketch18.addConstraint(Sketcher.Constraint("Coincident", 2, 3, -1, 1))
sketch18.addConstraint(Sketcher.Constraint("Radius", 0, Q("15 mm")))
sketch18.addConstraint(Sketcher.Constraint("Radius", 2, Q("12 mm")))
sketch18.addConstraint(Sketcher.Constraint("Angle", 1, Q("65 deg")))
sketch18.addConstraint(Sketcher.Constraint("Angle", 3, Q("-105 deg")))
sketch18.addConstraint(Sketcher.Constraint("DistanceX", 1, 2, -1, 1, Q("5.071419 mm")))
sketch18.addConstraint(Sketcher.Constraint("DistanceX", 2, 2, -1, 1, Q("3.105829 mm")))
pocket17 = doc.addObject("PartDesign::Pocket", "Pocket016")
body.addObject(pocket17)
pocket17.Profile = sketch18
pocket17.Type = "UpToFirst"
pocket17.Reversed = True

# Sketch on XY plane
sketch19 = doc.addObject("Sketcher::SketchObject", "Sketch018")
body.addObject(sketch19)
sketch19.AttachmentSupport = (doc.XY_Plane, [""])
sketch19.MapMode = "FlatFace"
sketch19.addGeometry(Part.ArcOfCircle(Part.Circle(App.Vector(0, 0, 0), App.Vector(0, 0, 1), 15), math.radians(-135), math.radians(-125)), False)
sketch19.addGeometry(Part.LineSegment(App.Vector(-10.606602, -10.606602, 0), App.Vector(-8.485281, -8.485281, 0)), False)
sketch19.addGeometry(Part.ArcOfCircle(Part.Circle(App.Vector(0, 0, 0), App.Vector(0, 0, 1), 12), math.radians(-135), math.radians(-125)), False)
sketch19.addGeometry(Part.LineSegment(App.Vector(-6.882917, -9.829825, 0), App.Vector(-8.603647, -12.287281, 0)), False)
sketch19.addConstraint(Sketcher.Constraint("Coincident", 0, 1, 1, 1))
sketch19.addConstraint(Sketcher.Constraint("Coincident", 1, 2, 2, 1))
sketch19.addConstraint(Sketcher.Constraint("Coincident", 2, 2, 3, 1))
sketch19.addConstraint(Sketcher.Constraint("Coincident", 3, 2, 0, 2))
sketch19.addConstraint(Sketcher.Constraint("Coincident", 0, 3, -1, 1))
sketch19.addConstraint(Sketcher.Constraint("Coincident", 2, 3, -1, 1))
sketch19.addConstraint(Sketcher.Constraint("Radius", 0, Q("15 mm")))
sketch19.addConstraint(Sketcher.Constraint("Radius", 2, Q("12 mm")))
sketch19.addConstraint(Sketcher.Constraint("Angle", 1, Q("45 deg")))
sketch19.addConstraint(Sketcher.Constraint("Angle", 3, Q("-125 deg")))
sketch19.addConstraint(Sketcher.Constraint("DistanceY", 3, 2, 1, 2, Q("3.801999 mm")))
sketch19.addConstraint(Sketcher.Constraint("DistanceX", 0, 1, -1, 1, Q("10.606602 mm")))
pocket18 = doc.addObject("PartDesign::Pocket", "Pocket017")
body.addObject(pocket18)
pocket18.Profile = sketch19
pocket18.Type = "UpToFirst"
pocket18.Reversed = True

# Sketch on XY plane
sketch20 = doc.addObject("Sketcher::SketchObject", "Sketch019")
body.addObject(sketch20)
sketch20.AttachmentSupport = (doc.XY_Plane, [""])
sketch20.MapMode = "FlatFace"
sketch20.addGeometry(Part.ArcOfCircle(Part.Circle(App.Vector(0, 0, 0), App.Vector(0, 0, 1), 15), math.radians(-155), math.radians(-145)), False)
sketch20.addGeometry(Part.LineSegment(App.Vector(-13.594617, -6.339274, 0), App.Vector(-10.875693, -5.071419, 0)), False)
sketch20.addGeometry(Part.ArcOfCircle(Part.Circle(App.Vector(0, 0, 0), App.Vector(0, 0, 1), 12), math.radians(-155), math.radians(-145)), False)
sketch20.addGeometry(Part.LineSegment(App.Vector(-9.829825, -6.882917, 0), App.Vector(-12.287281, -8.603647, 0)), False)
sketch20.addConstraint(Sketcher.Constraint("Coincident", 0, 1, 1, 1))
sketch20.addConstraint(Sketcher.Constraint("Coincident", 1, 2, 2, 1))
sketch20.addConstraint(Sketcher.Constraint("Coincident", 2, 2, 3, 1))
sketch20.addConstraint(Sketcher.Constraint("Coincident", 3, 2, 0, 2))
sketch20.addConstraint(Sketcher.Constraint("Coincident", 0, 3, -1, 1))
sketch20.addConstraint(Sketcher.Constraint("Coincident", 2, 3, -1, 1))
sketch20.addConstraint(Sketcher.Constraint("Radius", 0, Q("15 mm")))
sketch20.addConstraint(Sketcher.Constraint("Radius", 2, Q("12 mm")))
sketch20.addConstraint(Sketcher.Constraint("Angle", 1, Q("25 deg")))
sketch20.addConstraint(Sketcher.Constraint("Angle", 3, Q("-145 deg")))
sketch20.addConstraint(Sketcher.Constraint("DistanceY", 2, 2, 1, 2, Q("1.811498 mm")))
sketch20.addConstraint(Sketcher.Constraint("DistanceY", 1, 2, -1, 1, Q("5.071419 mm")))
pocket19 = doc.addObject("PartDesign::Pocket", "Pocket018")
body.addObject(pocket19)
pocket19.Profile = sketch20
pocket19.Type = "UpToFirst"
pocket19.Reversed = True

# Sketch on XY plane
sketch21 = doc.addObject("Sketcher::SketchObject", "Sketch020")
body.addObject(sketch21)
sketch21.AttachmentSupport = (doc.XY_Plane, [""])
sketch21.MapMode = "FlatFace"
sketch21.addGeometry(Part.Circle(App.Vector(0, 0, 0), App.Vector(0, 0, 1), 5), False)
sketch21.addConstraint(Sketcher.Constraint("Coincident", 0, 3, -1, 1))
sketch21.addConstraint(Sketcher.Constraint("Diameter", 0, Q("10 mm")))
pocket20 = doc.addObject("PartDesign::Pocket", "Pocket019")
body.addObject(pocket20)
pocket20.Profile = sketch21
pocket20.Type = "UpToFirst"
pocket20.Reversed = True

doc.recompute()
